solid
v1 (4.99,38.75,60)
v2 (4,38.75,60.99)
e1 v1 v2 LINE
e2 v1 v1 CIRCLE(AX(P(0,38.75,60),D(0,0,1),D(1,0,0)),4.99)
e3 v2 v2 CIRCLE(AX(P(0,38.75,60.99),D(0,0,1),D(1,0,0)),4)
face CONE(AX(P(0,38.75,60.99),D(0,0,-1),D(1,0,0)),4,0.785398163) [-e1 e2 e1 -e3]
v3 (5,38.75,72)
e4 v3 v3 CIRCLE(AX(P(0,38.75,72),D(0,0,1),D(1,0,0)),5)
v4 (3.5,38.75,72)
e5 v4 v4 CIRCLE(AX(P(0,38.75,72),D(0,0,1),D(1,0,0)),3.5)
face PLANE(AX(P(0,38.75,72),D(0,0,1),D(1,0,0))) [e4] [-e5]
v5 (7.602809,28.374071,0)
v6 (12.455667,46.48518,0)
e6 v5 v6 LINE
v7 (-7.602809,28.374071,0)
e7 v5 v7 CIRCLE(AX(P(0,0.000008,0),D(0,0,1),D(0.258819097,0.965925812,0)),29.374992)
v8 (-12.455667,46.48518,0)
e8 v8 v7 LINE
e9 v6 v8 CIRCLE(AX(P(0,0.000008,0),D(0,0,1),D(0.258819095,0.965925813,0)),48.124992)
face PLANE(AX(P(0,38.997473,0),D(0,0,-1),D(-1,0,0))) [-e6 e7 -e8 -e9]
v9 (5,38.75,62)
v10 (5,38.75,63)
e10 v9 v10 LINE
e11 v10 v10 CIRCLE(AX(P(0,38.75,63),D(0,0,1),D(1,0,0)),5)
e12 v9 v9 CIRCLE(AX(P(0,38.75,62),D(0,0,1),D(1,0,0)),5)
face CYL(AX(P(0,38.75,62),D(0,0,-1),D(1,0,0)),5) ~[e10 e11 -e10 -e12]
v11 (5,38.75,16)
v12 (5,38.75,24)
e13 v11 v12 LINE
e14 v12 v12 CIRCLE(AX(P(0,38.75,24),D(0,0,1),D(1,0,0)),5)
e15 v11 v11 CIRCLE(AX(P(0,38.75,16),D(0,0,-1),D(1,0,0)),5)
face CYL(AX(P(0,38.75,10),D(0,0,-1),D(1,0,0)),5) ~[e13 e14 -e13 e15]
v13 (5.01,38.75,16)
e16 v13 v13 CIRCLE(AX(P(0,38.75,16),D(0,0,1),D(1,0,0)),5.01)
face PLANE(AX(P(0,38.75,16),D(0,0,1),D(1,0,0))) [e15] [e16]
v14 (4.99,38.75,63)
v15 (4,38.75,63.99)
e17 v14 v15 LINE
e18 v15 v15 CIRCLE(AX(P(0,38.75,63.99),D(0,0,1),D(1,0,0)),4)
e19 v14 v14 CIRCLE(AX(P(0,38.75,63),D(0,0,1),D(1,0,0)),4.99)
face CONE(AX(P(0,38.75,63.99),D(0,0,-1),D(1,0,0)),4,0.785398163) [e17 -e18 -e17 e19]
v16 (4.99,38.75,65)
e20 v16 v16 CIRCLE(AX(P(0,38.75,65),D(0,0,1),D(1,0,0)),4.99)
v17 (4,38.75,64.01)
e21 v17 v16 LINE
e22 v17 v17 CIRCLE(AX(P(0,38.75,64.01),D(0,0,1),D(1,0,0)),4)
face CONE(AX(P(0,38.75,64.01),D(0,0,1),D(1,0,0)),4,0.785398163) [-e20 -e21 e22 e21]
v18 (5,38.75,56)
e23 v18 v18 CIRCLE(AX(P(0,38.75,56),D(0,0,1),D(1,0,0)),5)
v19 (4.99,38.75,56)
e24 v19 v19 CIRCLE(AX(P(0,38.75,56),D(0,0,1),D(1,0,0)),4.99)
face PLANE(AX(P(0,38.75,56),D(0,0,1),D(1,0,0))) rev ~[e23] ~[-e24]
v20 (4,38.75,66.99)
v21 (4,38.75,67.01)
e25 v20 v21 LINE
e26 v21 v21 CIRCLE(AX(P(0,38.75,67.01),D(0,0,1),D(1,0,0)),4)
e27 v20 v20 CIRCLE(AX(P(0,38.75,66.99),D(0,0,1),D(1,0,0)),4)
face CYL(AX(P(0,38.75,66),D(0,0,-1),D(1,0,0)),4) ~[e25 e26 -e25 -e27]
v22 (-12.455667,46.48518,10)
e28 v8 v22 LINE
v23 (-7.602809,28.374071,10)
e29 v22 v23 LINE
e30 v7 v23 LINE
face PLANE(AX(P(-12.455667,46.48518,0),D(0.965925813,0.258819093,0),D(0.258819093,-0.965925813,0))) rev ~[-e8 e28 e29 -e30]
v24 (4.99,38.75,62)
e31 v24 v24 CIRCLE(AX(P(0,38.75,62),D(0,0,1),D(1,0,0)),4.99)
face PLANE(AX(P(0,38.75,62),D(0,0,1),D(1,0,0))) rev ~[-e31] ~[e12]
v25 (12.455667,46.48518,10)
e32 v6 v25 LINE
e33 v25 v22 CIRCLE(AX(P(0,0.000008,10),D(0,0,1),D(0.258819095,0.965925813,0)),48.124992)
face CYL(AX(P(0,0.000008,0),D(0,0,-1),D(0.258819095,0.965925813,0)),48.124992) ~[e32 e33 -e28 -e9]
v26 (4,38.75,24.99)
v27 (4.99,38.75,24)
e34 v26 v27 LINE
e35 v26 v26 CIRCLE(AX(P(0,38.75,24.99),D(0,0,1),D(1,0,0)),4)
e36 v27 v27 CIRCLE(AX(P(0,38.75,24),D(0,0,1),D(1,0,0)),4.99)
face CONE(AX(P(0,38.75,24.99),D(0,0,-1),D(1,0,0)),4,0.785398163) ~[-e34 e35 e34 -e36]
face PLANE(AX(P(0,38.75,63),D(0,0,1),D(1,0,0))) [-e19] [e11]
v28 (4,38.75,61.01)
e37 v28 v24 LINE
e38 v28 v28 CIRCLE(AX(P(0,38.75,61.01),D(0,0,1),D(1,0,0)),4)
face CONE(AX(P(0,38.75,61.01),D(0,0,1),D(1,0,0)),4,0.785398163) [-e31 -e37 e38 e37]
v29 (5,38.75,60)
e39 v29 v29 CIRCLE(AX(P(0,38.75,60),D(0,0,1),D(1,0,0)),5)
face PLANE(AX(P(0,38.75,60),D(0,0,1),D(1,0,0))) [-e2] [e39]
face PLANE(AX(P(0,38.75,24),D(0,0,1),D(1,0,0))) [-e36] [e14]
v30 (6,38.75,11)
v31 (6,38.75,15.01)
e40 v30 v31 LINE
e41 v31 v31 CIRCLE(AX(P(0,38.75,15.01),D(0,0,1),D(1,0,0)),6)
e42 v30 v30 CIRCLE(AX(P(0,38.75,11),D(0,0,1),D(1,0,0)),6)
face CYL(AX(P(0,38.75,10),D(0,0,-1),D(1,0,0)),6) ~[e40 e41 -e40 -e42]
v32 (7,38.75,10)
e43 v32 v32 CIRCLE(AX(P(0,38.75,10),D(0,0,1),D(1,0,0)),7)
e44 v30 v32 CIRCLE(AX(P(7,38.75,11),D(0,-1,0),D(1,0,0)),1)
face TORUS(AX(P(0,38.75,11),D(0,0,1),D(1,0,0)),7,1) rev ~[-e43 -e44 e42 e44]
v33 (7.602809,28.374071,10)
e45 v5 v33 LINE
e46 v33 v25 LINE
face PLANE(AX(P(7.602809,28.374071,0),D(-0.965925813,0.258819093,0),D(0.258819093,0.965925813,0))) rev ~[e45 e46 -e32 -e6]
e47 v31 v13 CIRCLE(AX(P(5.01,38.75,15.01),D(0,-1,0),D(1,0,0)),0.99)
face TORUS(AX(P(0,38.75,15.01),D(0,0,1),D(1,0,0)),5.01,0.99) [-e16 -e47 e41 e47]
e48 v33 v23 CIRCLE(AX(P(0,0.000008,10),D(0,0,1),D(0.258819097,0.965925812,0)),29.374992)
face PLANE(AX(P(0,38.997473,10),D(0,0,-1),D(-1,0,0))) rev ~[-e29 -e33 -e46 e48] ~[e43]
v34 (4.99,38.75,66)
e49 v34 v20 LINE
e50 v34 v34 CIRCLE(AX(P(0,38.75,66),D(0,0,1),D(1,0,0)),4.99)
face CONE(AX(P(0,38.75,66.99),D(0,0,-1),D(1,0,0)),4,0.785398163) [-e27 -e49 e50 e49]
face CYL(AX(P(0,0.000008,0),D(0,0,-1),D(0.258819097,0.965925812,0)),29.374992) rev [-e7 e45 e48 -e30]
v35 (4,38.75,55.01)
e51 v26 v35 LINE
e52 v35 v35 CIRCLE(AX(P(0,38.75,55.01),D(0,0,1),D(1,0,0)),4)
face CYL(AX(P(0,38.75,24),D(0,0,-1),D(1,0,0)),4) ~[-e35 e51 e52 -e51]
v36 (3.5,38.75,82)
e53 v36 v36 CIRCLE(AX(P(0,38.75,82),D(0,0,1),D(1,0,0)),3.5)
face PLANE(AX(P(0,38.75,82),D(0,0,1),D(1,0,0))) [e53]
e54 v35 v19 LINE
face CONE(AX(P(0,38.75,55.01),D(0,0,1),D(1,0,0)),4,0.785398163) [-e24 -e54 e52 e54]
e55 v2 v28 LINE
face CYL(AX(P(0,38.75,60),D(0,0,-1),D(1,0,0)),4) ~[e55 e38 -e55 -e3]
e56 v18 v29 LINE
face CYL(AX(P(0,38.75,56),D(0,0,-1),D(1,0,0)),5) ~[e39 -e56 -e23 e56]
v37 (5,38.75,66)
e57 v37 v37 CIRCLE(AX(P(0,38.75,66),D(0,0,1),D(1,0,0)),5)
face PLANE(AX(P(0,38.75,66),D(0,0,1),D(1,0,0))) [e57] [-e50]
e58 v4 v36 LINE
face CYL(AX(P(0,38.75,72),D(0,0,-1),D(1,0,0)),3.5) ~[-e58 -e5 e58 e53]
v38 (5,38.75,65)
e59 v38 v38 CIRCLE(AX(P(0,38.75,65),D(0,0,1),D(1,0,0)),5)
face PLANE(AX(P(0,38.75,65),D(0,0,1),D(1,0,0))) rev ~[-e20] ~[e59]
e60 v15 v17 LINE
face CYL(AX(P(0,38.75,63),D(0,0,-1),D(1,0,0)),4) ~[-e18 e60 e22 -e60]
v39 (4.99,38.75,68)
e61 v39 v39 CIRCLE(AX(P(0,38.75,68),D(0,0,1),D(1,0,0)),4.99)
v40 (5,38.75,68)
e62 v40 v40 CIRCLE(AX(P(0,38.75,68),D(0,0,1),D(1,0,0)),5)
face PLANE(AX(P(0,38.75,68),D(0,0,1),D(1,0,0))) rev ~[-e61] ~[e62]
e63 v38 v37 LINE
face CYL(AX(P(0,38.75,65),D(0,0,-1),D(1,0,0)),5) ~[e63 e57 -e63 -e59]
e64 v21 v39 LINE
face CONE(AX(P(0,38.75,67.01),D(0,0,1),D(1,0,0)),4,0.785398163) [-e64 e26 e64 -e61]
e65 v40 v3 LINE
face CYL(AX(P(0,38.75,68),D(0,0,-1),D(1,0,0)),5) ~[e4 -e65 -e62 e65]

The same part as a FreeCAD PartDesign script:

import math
import FreeCAD as App
import Part
import Sketcher
from FreeCAD import Vector
Q = App.Units.Quantity


def edges_at(feature, points):
    """Names of the edges that pass closest to the given points."""
    edges = feature.Shape.Edges
    near = lambda p: min(range(len(edges)), key=lambda i: edges[i].distToShape(Part.Vertex(*p))[0])
    return sorted({f"Edge{near(p) + 1}" for p in points})

doc = App.newDocument("Part")
body = doc.addObject("PartDesign::Body", "Body")

# Sketch on XY plane
sketch1 = body.newObject("Sketcher::SketchObject", "Sketch")
sketch1.AttachmentSupport = (doc.getObject("XY_Plane"), [""])
sketch1.MapMode = "FlatFace"
sketch1.addGeometry([
    Part.ArcOfCircle(Part.Circle(Vector(0, 0.000008, 0), Vector(0, 0, 1), 29.374992), math.radians(74.999997), math.radians(105.000003)),
    Part.LineSegment(Vector(7.602809, 28.374071, 0), Vector(12.455667, 46.48518, 0)),
    Part.ArcOfCircle(Part.Circle(Vector(0, 0.000008, 0), Vector(0, 0, 1), 48.124992), math.radians(74.999997), math.radians(105.000003)),
    Part.LineSegment(Vector(-12.455667, 46.48518, 0), Vector(-7.602809, 28.374071, 0)),
], False)
sketch1.addConstraint([
    Sketcher.Constraint("Coincident", 0, 1, 1, 1),
    Sketcher.Constraint("Coincident", 1, 2, 2, 1),
    Sketcher.Constraint("Coincident", 2, 2, 3, 1),
    Sketcher.Constraint("Coincident", 3, 2, 0, 2),
    Sketcher.Constraint("Coincident", 0, 3, -1, 1),
    Sketcher.Constraint("Coincident", 2, 3, -1, 1),
    Sketcher.Constraint("Horizontal", 1, 2, 2, 2),
    Sketcher.Constraint("Horizontal", 0, 1, 3, 2),
    Sketcher.Constraint("Angle", 1, Q("74.999997 deg")),
    Sketcher.Constraint("Distance", 1, 18.75),
    Sketcher.Constraint("Radius", 0, 29.374992),
    Sketcher.Constraint("DistanceX", -1, 1, 0, 1, 7.602809),
])
pad1 = body.newObject("PartDesign::Pad", "Pad")
pad1.Profile = sketch1
pad1.Length = 10

# Sketch on XY plane
sketch2 = body.newObject("Sketcher::SketchObject", "Sketch001")
sketch2.AttachmentSupport = (doc.getObject("XY_Plane"), [""])
sketch2.MapMode = "FlatFace"
sketch2.AttachmentOffset = App.Placement(Vector(0, 0, 10), App.Rotation())
sketch2.addGeometry(Part.Circle(Vector(0, 38.75, 0), Vector(0, 0, 1), 5), False)
sketch2.addConstraint([
    Sketcher.Constraint("PointOnObject", 0, 3, -2),
    Sketcher.Constraint("Diameter", 0, 10.0),
    Sketcher.Constraint("DistanceY", -1, 1, 0, 3, 38.75),
])
pad2 = body.newObject("PartDesign::Pad", "Pad001")
pad2.Profile = sketch2
pad2.Length = 14

# Sketch on XY plane
sketch3 = body.newObject("Sketcher::SketchObject", "Sketch002")
sketch3.AttachmentSupport = (doc.getObject("XY_Plane"), [""])
sketch3.MapMode = "FlatFace"
sketch3.AttachmentOffset = App.Placement(Vector(0, 0, 24), App.Rotation())
sketch3.addGeometry(Part.Circle(Vector(0, 38.75, 0), Vector(0, 0, 1), 4), False)
sketch3.addConstraint([
    Sketcher.Constraint("PointOnObject", 0, 3, -2),
    Sketcher.Constraint("Diameter", 0, 8.0),
    Sketcher.Constraint("DistanceY", -1, 1, 0, 3, 38.75),
])
pad3 = body.newObject("PartDesign::Pad", "Pad002")
pad3.Profile = sketch3
pad3.Length = 32

# Sketch on XY plane
sketch4 = body.newObject("Sketcher::SketchObject", "Sketch003")
sketch4.AttachmentSupport = (doc.getObject("XY_Plane"), [""])
sketch4.MapMode = "FlatFace"
sketch4.AttachmentOffset = App.Placement(Vector(0, 0, 56), App.Rotation())
sketch4.addGeometry(Part.Circle(Vector(0, 38.75, 0), Vector(0, 0, 1), 5), False)
sketch4.addConstraint([
    Sketcher.Constraint("PointOnObject", 0, 3, -2),
    Sketcher.Constraint("Diameter", 0, 10.0),
    Sketcher.Constraint("DistanceY", -1, 1, 0, 3, 38.75),
])
pad4 = body.newObject("PartDesign::Pad", "Pad003")
pad4.Profile = sketch4
pad4.Length = 4

# Sketch on XY plane
sketch5 = body.newObject("Sketcher::SketchObject", "Sketch004")
sketch5.AttachmentSupport = (doc.getObject("XY_Plane"), [""])
sketch5.MapMode = "FlatFace"
sketch5.AttachmentOffset = App.Placement(Vector(0, 0, 60), App.Rotation())
sketch5.addGeometry(Part.Circle(Vector(0, 38.75, 0), Vector(0, 0, 1), 4), False)
sketch5.addConstraint([
    Sketcher.Constraint("PointOnObject", 0, 3, -2),
    Sketcher.Constraint("Diameter", 0, 8.0),
    Sketcher.Constraint("DistanceY", -1, 1, 0, 3, 38.75),
])
pad5 = body.newObject("PartDesign::Pad", "Pad004")
pad5.Profile = sketch5
pad5.Length = 2
doc.recompute()

chamfer = body.newObject("PartDesign::Chamfer", "Chamfer")
chamfer.Base = (pad5, edges_at(pad5, [(-4, 38.75, 24)]))
chamfer.Size = 0.99
doc.recompute()

chamfer2 = body.newObject("PartDesign::Chamfer", "Chamfer001")
chamfer2.Base = (chamfer, edges_at(chamfer, [(-4, 38.75, 56)]))
chamfer2.Size = 0.99

# Sketch on XY plane
sketch6 = body.newObject("Sketcher::SketchObject", "Sketch005")
sketch6.AttachmentSupport = (doc.getObject("XY_Plane"), [""])
sketch6.MapMode = "FlatFace"
sketch6.AttachmentOffset = App.Placement(Vector(0, 0, 62), App.Rotation())
sketch6.addGeometry(Part.Circle(Vector(0, 38.75, 0), Vector(0, 0, 1), 5), False)
sketch6.addConstraint([
    Sketcher.Constraint("PointOnObject", 0, 3, -2),
    Sketcher.Constraint("Diameter", 0, 10.0),
    Sketcher.Constraint("DistanceY", -1, 1, 0, 3, 38.75),
])
pad6 = body.newObject("PartDesign::Pad", "Pad005")
pad6.Profile = sketch6
pad6.Length = 1

# Sketch on XY plane
sketch7 = body.newObject("Sketcher::SketchObject", "Sketch006")
sketch7.AttachmentSupport = (doc.getObject("XY_Plane"), [""])
sketch7.MapMode = "FlatFace"
sketch7.AttachmentOffset = App.Placement(Vector(0, 0, 63), App.Rotation())
sketch7.addGeometry(Part.Circle(Vector(0, 38.75, 0), Vector(0, 0, 1), 4), False)
sketch7.addConstraint([
    Sketcher.Constraint("PointOnObject", 0, 3, -2),
    Sketcher.Constraint("Diameter", 0, 8.0),
    Sketcher.Constraint("DistanceY", -1, 1, 0, 3, 38.75),
])
pad7 = body.newObject("PartDesign::Pad", "Pad006")
pad7.Profile = sketch7
pad7.Length = 2

# Sketch on XY plane
sketch8 = body.newObject("Sketcher::SketchObject", "Sketch007")
sketch8.AttachmentSupport = (doc.getObject("XY_Plane"), [""])
sketch8.MapMode = "FlatFace"
sketch8.AttachmentOffset = App.Placement(Vector(0, 0, 65), App.Rotation())
sketch8.addGeometry(Part.Circle(Vector(0, 38.75, 0), Vector(0, 0, 1), 5), False)
sketch8.addConstraint([
    Sketcher.Constraint("PointOnObject", 0, 3, -2),
    Sketcher.Constraint("Diameter", 0, 10.0),
    Sketcher.Constraint("DistanceY", -1, 1, 0, 3, 38.75),
])
pad8 = body.newObject("PartDesign::Pad", "Pad007")
pad8.Profile = sketch8
pad8.Length = 1

# Sketch on XY plane
sketch9 = body.newObject("Sketcher::SketchObject", "Sketch008")
sketch9.AttachmentSupport = (doc.getObject("XY_Plane"), [""])
sketch9.MapMode = "FlatFace"
sketch9.AttachmentOffset = App.Placement(Vector(0, 0, 66), App.Rotation())
sketch9.addGeometry(Part.Circle(Vector(0, 38.75, 0), Vector(0, 0, 1), 4), False)
sketch9.addConstraint([
    Sketcher.Constraint("PointOnObject", 0, 3, -2),
    Sketcher.Constraint("Diameter", 0, 8.0),
    Sketcher.Constraint("DistanceY", -1, 1, 0, 3, 38.75),
])
pad9 = body.newObject("PartDesign::Pad", "Pad008")
pad9.Profile = sketch9
pad9.Length = 2

# Sketch on XY plane
sketch10 = body.newObject("Sketcher::SketchObject", "Sketch009")
sketch10.AttachmentSupport = (doc.getObject("XY_Plane"), [""])
sketch10.MapMode = "FlatFace"
sketch10.AttachmentOffset = App.Placement(Vector(0, 0, 68), App.Rotation())
sketch10.addGeometry(Part.Circle(Vector(0, 38.75, 0), Vector(0, 0, 1), 5), False)
sketch10.addConstraint([
    Sketcher.Constraint("PointOnObject", 0, 3, -2),
    Sketcher.Constraint("Diameter", 0, 10.0),
    Sketcher.Constraint("DistanceY", -1, 1, 0, 3, 38.75),
])
pad10 = body.newObject("PartDesign::Pad", "Pad009")
pad10.Profile = sketch10
pad10.Length = 4

# Sketch on XY plane
sketch11 = body.newObject("Sketcher::SketchObject", "Sketch010")
sketch11.AttachmentSupport = (doc.getObject("XY_Plane"), [""])
sketch11.MapMode = "FlatFace"
sketch11.AttachmentOffset = App.Placement(Vector(0, 0, 10), App.Rotation())
sketch11.addGeometry(Part.Circle(Vector(0, 38.75, 0), Vector(0, 0, 1), 6), False)
sketch11.addConstraint([
    Sketcher.Constraint("PointOnObject", 0, 3, -2),
    Sketcher.Constraint("Diameter", 0, 12.0),
    Sketcher.Constraint("DistanceY", -1, 1, 0, 3, 38.75),
])
pad11 = body.newObject("PartDesign::Pad", "Pad010")
pad11.Profile = sketch11
pad11.Length = 6
doc.recompute()

fillet = body.newObject("PartDesign::Fillet", "Fillet")
fillet.Base = (pad11, edges_at(pad11, [(-6, 38.75, 16)]))
fillet.Radius = 0.99
doc.recompute()

fillet2 = body.newObject("PartDesign::Fillet", "Fillet001")
fillet2.Base = (fillet, edges_at(fillet, [(-6, 38.75, 10)]))
fillet2.Radius = 1

# Sketch on XY plane
sketch12 = body.newObject("Sketcher::SketchObject", "Sketch011")
sketch12.AttachmentSupport = (doc.getObject("XY_Plane"), [""])
sketch12.MapMode = "FlatFace"
sketch12.AttachmentOffset = App.Placement(Vector(0, 0, 72), App.Rotation())
sketch12.addGeometry(Part.Circle(Vector(0, 38.75, 0), Vector(0, 0, 1), 3.5), False)
sketch12.addConstraint([
    Sketcher.Constraint("PointOnObject", 0, 3, -2),
    Sketcher.Constraint("Diameter", 0, 7.0),
    Sketcher.Constraint("DistanceY", -1, 1, 0, 3, 38.75),
])
pad12 = body.newObject("PartDesign::Pad", "Pad011")
pad12.Profile = sketch12
pad12.Length = 10
doc.recompute()

chamfer3 = body.newObject("PartDesign::Chamfer", "Chamfer002")
chamfer3.Base = (pad12, edges_at(pad12, [
    (-4, 38.75, 68),
    (-4, 38.75, 65),
    (-4, 38.75, 62),
    (-4, 38.75, 66),
    (-4, 38.75, 63),
    (-4, 38.75, 60),
]))
chamfer3.Size = 0.99

doc.recompute()
